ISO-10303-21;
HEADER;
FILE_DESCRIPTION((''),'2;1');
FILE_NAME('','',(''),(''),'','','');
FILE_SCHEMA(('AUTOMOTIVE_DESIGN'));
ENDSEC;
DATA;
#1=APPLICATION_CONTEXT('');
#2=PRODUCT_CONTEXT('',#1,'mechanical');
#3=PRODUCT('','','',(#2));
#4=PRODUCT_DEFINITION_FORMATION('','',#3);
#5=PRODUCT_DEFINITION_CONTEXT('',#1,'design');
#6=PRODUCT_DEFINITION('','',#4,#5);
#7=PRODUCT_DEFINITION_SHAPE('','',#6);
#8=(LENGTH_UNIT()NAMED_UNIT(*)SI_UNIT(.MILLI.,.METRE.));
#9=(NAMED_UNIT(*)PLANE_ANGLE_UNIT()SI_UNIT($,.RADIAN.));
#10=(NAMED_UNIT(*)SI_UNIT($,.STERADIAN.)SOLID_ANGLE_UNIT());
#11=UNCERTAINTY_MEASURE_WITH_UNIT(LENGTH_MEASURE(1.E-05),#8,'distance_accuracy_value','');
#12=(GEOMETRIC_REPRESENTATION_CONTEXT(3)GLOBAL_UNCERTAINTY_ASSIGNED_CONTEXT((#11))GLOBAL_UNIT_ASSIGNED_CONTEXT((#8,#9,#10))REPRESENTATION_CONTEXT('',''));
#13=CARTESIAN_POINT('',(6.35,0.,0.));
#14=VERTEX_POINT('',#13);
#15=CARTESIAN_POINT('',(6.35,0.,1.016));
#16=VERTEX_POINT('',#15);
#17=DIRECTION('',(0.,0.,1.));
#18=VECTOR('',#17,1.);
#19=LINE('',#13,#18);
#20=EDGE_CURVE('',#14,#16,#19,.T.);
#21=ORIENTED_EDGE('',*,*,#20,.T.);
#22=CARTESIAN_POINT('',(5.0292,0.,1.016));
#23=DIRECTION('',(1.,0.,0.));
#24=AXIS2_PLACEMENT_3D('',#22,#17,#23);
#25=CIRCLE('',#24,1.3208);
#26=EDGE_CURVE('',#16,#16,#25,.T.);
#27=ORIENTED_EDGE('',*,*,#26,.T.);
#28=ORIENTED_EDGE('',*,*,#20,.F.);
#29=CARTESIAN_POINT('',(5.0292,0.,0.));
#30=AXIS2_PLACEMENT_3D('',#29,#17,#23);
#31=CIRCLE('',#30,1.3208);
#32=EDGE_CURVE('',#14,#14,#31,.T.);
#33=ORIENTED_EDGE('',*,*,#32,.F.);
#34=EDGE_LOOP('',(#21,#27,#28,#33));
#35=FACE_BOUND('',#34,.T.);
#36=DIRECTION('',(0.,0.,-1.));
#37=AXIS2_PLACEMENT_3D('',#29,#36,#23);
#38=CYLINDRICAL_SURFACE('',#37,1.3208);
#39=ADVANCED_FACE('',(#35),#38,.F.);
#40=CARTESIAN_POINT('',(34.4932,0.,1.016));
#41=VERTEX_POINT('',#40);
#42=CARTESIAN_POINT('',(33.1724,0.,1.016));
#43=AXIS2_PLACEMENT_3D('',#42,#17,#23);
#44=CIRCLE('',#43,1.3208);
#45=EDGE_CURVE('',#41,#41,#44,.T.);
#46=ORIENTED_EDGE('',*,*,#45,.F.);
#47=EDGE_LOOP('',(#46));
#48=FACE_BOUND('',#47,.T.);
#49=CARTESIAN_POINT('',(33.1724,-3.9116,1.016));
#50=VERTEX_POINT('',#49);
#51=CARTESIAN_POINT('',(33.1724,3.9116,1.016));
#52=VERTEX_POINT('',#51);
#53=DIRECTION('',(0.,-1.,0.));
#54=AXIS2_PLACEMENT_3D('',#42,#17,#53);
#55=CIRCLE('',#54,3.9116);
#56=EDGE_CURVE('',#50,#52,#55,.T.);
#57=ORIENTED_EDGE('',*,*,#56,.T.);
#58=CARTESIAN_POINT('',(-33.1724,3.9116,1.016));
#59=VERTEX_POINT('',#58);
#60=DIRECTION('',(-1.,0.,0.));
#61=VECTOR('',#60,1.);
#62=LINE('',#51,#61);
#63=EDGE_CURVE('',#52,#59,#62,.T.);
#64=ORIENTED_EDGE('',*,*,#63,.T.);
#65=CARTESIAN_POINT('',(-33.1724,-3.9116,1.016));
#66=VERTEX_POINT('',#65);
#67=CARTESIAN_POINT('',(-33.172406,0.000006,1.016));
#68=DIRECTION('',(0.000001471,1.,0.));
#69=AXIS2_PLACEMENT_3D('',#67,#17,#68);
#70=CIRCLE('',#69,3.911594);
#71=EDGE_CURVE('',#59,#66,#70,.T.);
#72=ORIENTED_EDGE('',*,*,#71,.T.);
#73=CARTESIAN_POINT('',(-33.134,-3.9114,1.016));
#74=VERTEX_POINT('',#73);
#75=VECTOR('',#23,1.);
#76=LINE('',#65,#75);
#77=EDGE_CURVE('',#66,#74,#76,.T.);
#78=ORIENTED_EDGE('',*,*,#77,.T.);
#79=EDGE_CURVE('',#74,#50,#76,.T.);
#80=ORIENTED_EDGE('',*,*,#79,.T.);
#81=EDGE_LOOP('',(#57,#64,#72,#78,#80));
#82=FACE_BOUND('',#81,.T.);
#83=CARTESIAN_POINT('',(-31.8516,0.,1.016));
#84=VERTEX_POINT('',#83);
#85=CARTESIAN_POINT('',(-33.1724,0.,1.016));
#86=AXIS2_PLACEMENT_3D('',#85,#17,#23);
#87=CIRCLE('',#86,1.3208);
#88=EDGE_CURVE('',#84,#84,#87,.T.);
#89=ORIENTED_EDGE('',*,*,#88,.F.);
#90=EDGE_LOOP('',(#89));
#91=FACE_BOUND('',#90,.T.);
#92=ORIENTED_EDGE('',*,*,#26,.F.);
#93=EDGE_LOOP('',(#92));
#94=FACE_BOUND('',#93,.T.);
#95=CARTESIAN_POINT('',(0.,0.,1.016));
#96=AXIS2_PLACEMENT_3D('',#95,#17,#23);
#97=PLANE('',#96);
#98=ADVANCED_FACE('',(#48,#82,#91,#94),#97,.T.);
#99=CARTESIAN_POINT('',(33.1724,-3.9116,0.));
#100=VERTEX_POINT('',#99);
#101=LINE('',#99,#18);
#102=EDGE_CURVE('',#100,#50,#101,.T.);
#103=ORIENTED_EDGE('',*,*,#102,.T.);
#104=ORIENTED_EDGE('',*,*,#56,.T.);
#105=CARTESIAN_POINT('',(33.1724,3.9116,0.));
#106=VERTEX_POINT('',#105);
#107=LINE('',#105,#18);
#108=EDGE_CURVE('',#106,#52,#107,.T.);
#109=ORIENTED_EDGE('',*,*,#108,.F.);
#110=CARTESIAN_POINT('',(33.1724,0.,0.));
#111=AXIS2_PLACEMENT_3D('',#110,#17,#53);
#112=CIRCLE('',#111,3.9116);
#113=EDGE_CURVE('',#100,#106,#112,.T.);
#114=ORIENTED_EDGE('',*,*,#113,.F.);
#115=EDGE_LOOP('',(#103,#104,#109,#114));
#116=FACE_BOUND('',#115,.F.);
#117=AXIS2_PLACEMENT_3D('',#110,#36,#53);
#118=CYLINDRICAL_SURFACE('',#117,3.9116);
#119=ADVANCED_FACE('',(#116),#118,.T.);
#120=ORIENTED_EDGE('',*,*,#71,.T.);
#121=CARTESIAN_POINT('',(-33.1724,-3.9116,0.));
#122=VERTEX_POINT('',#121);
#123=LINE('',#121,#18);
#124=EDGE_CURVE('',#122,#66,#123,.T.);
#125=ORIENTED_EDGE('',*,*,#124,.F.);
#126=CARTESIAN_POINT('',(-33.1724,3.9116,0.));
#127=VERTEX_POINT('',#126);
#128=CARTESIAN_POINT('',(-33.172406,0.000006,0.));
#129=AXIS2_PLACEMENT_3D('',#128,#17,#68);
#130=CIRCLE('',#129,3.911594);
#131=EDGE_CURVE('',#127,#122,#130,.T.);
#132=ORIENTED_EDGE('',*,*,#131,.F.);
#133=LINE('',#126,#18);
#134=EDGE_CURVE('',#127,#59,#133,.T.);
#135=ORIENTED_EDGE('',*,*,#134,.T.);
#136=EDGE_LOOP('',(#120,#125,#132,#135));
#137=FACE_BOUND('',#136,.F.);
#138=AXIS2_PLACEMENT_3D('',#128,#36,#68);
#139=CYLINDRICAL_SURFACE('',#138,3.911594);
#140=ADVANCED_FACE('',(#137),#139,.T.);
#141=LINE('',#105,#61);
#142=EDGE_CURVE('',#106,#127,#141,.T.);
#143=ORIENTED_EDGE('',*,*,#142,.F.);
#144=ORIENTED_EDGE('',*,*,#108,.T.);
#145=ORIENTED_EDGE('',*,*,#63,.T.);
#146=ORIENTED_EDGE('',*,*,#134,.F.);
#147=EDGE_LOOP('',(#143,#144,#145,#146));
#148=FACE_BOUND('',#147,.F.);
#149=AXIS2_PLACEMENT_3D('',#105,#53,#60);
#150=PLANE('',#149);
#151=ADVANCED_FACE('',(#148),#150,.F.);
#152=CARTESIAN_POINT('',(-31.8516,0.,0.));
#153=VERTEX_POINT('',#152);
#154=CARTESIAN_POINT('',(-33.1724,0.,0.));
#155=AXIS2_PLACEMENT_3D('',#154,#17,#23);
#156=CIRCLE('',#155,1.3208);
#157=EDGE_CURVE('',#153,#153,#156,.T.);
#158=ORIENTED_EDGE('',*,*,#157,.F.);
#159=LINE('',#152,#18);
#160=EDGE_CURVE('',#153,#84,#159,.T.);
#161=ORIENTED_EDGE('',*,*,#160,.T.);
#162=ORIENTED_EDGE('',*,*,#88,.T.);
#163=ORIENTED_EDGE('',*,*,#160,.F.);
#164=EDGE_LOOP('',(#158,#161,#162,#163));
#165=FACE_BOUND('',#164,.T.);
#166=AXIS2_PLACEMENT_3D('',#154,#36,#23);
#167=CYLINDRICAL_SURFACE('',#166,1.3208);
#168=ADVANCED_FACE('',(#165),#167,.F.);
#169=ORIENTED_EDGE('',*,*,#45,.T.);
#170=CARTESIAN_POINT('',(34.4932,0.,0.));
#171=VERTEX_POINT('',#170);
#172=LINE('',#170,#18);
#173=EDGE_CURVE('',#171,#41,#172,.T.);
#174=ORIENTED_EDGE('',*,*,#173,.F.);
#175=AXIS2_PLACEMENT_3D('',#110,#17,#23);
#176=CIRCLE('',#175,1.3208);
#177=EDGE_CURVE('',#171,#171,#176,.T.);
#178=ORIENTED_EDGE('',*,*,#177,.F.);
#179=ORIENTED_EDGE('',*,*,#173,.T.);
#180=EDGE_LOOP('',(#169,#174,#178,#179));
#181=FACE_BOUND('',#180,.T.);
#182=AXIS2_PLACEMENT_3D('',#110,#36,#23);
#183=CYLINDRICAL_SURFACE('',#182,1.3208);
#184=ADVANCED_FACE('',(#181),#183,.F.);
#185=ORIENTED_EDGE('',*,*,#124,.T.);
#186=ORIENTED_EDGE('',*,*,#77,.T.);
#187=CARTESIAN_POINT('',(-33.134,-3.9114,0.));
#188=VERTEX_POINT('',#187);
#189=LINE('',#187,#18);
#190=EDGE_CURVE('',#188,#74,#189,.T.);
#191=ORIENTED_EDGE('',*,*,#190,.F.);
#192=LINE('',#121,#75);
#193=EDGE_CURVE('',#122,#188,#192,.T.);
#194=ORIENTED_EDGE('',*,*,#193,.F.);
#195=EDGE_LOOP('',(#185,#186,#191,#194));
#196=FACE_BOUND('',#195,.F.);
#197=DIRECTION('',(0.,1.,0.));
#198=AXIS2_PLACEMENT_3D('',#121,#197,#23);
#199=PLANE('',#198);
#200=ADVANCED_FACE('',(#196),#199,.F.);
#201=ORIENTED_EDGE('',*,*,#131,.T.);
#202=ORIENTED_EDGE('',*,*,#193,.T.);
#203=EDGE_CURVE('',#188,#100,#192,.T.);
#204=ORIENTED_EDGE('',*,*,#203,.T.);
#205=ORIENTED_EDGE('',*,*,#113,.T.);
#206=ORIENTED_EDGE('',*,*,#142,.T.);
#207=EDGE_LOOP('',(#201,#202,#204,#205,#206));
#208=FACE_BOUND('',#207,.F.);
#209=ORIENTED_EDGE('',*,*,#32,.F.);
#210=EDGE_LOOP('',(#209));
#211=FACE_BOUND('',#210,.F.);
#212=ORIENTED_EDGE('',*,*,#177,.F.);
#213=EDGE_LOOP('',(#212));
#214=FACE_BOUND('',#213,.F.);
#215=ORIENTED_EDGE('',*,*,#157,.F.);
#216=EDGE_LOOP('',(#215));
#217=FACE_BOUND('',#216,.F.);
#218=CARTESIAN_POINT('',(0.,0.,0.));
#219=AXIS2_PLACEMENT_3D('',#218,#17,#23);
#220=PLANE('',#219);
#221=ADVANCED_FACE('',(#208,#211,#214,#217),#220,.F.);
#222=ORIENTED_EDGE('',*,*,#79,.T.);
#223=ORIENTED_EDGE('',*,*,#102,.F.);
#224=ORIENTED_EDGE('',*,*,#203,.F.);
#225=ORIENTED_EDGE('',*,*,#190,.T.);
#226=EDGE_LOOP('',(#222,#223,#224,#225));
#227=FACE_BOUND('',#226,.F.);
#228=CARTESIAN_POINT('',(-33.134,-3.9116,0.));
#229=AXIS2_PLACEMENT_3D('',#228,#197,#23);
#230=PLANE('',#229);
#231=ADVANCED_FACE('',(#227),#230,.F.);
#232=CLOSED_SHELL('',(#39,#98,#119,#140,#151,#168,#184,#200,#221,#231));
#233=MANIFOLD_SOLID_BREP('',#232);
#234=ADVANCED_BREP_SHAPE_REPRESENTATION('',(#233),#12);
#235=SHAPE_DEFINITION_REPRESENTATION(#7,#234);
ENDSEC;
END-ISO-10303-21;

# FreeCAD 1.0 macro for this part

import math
import FreeCAD as App
import Part
import Sketcher
from FreeCAD import Vector
Q = App.Units.Quantity

doc = App.newDocument("Part")
body = doc.addObject("PartDesign::Body", "Body")

# Sketch on XY plane
sketch1 = body.newObject("Sketcher::SketchObject", "Sketch")
sketch1.AttachmentSupport = (doc.getObject("XY_Plane"), [""])
sketch1.MapMode = "FlatFace"
sketch1.addGeometry([
    Part.ArcOfCircle(Part.Circle(Vector(-33.2, 0, 0), Vector(0, 0, 1), 3.9), math.radians(90), math.radians(270)),  # 0
    Part.LineSegment(Vector(-33.2, -3.9, 0), Vector(33.2, -3.9, 0)),  # 1
    Part.ArcOfCircle(Part.Circle(Vector(33.2, 0, 0), Vector(0, 0, 1), 3.9), math.radians(-90), math.radians(90)),  # 2
    Part.LineSegment(Vector(33.2, 3.9, 0), Vector(-33.2, 3.9, 0)),  # 3
    Part.Circle(Vector(-33.2, 0, 0), Vector(0, 0, 1), 1.3),  # 4
    Part.Circle(Vector(5, 0, 0), Vector(0, 0, 1), 1.3),  # 5
    Part.Circle(Vector(33.2, 0, 0), Vector(0, 0, 1), 1.3),  # 6
], False)
sketch1.addConstraint([
    Sketcher.Constraint("Tangent", 0, 2, 1, 1),
    Sketcher.Constraint("Tangent", 1, 2, 2, 1),
    Sketcher.Constraint("Tangent", 2, 2, 3, 1),
    Sketcher.Constraint("Tangent", 3, 2, 0, 1),
    Sketcher.Constraint("Horizontal", 1),
    Sketcher.Constraint("Horizontal", 3),
    Sketcher.Constraint("Coincident", 4, 3, 0, 3),
    Sketcher.Constraint("Coincident", 6, 3, 2, 3),
    Sketcher.Constraint("Equal", 4, 5),
    Sketcher.Constraint("Equal", 5, 6),
    Sketcher.Constraint("Symmetric", 0, 3, 2, 3, -1, 1),
    Sketcher.Constraint("PointOnObject", 5, 3, -1),
    Sketcher.Constraint("Diameter", 4, Q("0.104 in")),
    Sketcher.Constraint("Radius", 0, Q("0.154 in")),
    Sketcher.Constraint("DistanceX", 1, 1, 1, 2, Q("2.612 in")),
    Sketcher.Constraint("DistanceX", -1, 1, 5, 3, Q("0.198 in")),
])
pad1 = body.newObject("PartDesign::Pad", "Pad")
pad1.Profile = sketch1
pad1.Length = Q("0.04 in")

doc.recompute()
